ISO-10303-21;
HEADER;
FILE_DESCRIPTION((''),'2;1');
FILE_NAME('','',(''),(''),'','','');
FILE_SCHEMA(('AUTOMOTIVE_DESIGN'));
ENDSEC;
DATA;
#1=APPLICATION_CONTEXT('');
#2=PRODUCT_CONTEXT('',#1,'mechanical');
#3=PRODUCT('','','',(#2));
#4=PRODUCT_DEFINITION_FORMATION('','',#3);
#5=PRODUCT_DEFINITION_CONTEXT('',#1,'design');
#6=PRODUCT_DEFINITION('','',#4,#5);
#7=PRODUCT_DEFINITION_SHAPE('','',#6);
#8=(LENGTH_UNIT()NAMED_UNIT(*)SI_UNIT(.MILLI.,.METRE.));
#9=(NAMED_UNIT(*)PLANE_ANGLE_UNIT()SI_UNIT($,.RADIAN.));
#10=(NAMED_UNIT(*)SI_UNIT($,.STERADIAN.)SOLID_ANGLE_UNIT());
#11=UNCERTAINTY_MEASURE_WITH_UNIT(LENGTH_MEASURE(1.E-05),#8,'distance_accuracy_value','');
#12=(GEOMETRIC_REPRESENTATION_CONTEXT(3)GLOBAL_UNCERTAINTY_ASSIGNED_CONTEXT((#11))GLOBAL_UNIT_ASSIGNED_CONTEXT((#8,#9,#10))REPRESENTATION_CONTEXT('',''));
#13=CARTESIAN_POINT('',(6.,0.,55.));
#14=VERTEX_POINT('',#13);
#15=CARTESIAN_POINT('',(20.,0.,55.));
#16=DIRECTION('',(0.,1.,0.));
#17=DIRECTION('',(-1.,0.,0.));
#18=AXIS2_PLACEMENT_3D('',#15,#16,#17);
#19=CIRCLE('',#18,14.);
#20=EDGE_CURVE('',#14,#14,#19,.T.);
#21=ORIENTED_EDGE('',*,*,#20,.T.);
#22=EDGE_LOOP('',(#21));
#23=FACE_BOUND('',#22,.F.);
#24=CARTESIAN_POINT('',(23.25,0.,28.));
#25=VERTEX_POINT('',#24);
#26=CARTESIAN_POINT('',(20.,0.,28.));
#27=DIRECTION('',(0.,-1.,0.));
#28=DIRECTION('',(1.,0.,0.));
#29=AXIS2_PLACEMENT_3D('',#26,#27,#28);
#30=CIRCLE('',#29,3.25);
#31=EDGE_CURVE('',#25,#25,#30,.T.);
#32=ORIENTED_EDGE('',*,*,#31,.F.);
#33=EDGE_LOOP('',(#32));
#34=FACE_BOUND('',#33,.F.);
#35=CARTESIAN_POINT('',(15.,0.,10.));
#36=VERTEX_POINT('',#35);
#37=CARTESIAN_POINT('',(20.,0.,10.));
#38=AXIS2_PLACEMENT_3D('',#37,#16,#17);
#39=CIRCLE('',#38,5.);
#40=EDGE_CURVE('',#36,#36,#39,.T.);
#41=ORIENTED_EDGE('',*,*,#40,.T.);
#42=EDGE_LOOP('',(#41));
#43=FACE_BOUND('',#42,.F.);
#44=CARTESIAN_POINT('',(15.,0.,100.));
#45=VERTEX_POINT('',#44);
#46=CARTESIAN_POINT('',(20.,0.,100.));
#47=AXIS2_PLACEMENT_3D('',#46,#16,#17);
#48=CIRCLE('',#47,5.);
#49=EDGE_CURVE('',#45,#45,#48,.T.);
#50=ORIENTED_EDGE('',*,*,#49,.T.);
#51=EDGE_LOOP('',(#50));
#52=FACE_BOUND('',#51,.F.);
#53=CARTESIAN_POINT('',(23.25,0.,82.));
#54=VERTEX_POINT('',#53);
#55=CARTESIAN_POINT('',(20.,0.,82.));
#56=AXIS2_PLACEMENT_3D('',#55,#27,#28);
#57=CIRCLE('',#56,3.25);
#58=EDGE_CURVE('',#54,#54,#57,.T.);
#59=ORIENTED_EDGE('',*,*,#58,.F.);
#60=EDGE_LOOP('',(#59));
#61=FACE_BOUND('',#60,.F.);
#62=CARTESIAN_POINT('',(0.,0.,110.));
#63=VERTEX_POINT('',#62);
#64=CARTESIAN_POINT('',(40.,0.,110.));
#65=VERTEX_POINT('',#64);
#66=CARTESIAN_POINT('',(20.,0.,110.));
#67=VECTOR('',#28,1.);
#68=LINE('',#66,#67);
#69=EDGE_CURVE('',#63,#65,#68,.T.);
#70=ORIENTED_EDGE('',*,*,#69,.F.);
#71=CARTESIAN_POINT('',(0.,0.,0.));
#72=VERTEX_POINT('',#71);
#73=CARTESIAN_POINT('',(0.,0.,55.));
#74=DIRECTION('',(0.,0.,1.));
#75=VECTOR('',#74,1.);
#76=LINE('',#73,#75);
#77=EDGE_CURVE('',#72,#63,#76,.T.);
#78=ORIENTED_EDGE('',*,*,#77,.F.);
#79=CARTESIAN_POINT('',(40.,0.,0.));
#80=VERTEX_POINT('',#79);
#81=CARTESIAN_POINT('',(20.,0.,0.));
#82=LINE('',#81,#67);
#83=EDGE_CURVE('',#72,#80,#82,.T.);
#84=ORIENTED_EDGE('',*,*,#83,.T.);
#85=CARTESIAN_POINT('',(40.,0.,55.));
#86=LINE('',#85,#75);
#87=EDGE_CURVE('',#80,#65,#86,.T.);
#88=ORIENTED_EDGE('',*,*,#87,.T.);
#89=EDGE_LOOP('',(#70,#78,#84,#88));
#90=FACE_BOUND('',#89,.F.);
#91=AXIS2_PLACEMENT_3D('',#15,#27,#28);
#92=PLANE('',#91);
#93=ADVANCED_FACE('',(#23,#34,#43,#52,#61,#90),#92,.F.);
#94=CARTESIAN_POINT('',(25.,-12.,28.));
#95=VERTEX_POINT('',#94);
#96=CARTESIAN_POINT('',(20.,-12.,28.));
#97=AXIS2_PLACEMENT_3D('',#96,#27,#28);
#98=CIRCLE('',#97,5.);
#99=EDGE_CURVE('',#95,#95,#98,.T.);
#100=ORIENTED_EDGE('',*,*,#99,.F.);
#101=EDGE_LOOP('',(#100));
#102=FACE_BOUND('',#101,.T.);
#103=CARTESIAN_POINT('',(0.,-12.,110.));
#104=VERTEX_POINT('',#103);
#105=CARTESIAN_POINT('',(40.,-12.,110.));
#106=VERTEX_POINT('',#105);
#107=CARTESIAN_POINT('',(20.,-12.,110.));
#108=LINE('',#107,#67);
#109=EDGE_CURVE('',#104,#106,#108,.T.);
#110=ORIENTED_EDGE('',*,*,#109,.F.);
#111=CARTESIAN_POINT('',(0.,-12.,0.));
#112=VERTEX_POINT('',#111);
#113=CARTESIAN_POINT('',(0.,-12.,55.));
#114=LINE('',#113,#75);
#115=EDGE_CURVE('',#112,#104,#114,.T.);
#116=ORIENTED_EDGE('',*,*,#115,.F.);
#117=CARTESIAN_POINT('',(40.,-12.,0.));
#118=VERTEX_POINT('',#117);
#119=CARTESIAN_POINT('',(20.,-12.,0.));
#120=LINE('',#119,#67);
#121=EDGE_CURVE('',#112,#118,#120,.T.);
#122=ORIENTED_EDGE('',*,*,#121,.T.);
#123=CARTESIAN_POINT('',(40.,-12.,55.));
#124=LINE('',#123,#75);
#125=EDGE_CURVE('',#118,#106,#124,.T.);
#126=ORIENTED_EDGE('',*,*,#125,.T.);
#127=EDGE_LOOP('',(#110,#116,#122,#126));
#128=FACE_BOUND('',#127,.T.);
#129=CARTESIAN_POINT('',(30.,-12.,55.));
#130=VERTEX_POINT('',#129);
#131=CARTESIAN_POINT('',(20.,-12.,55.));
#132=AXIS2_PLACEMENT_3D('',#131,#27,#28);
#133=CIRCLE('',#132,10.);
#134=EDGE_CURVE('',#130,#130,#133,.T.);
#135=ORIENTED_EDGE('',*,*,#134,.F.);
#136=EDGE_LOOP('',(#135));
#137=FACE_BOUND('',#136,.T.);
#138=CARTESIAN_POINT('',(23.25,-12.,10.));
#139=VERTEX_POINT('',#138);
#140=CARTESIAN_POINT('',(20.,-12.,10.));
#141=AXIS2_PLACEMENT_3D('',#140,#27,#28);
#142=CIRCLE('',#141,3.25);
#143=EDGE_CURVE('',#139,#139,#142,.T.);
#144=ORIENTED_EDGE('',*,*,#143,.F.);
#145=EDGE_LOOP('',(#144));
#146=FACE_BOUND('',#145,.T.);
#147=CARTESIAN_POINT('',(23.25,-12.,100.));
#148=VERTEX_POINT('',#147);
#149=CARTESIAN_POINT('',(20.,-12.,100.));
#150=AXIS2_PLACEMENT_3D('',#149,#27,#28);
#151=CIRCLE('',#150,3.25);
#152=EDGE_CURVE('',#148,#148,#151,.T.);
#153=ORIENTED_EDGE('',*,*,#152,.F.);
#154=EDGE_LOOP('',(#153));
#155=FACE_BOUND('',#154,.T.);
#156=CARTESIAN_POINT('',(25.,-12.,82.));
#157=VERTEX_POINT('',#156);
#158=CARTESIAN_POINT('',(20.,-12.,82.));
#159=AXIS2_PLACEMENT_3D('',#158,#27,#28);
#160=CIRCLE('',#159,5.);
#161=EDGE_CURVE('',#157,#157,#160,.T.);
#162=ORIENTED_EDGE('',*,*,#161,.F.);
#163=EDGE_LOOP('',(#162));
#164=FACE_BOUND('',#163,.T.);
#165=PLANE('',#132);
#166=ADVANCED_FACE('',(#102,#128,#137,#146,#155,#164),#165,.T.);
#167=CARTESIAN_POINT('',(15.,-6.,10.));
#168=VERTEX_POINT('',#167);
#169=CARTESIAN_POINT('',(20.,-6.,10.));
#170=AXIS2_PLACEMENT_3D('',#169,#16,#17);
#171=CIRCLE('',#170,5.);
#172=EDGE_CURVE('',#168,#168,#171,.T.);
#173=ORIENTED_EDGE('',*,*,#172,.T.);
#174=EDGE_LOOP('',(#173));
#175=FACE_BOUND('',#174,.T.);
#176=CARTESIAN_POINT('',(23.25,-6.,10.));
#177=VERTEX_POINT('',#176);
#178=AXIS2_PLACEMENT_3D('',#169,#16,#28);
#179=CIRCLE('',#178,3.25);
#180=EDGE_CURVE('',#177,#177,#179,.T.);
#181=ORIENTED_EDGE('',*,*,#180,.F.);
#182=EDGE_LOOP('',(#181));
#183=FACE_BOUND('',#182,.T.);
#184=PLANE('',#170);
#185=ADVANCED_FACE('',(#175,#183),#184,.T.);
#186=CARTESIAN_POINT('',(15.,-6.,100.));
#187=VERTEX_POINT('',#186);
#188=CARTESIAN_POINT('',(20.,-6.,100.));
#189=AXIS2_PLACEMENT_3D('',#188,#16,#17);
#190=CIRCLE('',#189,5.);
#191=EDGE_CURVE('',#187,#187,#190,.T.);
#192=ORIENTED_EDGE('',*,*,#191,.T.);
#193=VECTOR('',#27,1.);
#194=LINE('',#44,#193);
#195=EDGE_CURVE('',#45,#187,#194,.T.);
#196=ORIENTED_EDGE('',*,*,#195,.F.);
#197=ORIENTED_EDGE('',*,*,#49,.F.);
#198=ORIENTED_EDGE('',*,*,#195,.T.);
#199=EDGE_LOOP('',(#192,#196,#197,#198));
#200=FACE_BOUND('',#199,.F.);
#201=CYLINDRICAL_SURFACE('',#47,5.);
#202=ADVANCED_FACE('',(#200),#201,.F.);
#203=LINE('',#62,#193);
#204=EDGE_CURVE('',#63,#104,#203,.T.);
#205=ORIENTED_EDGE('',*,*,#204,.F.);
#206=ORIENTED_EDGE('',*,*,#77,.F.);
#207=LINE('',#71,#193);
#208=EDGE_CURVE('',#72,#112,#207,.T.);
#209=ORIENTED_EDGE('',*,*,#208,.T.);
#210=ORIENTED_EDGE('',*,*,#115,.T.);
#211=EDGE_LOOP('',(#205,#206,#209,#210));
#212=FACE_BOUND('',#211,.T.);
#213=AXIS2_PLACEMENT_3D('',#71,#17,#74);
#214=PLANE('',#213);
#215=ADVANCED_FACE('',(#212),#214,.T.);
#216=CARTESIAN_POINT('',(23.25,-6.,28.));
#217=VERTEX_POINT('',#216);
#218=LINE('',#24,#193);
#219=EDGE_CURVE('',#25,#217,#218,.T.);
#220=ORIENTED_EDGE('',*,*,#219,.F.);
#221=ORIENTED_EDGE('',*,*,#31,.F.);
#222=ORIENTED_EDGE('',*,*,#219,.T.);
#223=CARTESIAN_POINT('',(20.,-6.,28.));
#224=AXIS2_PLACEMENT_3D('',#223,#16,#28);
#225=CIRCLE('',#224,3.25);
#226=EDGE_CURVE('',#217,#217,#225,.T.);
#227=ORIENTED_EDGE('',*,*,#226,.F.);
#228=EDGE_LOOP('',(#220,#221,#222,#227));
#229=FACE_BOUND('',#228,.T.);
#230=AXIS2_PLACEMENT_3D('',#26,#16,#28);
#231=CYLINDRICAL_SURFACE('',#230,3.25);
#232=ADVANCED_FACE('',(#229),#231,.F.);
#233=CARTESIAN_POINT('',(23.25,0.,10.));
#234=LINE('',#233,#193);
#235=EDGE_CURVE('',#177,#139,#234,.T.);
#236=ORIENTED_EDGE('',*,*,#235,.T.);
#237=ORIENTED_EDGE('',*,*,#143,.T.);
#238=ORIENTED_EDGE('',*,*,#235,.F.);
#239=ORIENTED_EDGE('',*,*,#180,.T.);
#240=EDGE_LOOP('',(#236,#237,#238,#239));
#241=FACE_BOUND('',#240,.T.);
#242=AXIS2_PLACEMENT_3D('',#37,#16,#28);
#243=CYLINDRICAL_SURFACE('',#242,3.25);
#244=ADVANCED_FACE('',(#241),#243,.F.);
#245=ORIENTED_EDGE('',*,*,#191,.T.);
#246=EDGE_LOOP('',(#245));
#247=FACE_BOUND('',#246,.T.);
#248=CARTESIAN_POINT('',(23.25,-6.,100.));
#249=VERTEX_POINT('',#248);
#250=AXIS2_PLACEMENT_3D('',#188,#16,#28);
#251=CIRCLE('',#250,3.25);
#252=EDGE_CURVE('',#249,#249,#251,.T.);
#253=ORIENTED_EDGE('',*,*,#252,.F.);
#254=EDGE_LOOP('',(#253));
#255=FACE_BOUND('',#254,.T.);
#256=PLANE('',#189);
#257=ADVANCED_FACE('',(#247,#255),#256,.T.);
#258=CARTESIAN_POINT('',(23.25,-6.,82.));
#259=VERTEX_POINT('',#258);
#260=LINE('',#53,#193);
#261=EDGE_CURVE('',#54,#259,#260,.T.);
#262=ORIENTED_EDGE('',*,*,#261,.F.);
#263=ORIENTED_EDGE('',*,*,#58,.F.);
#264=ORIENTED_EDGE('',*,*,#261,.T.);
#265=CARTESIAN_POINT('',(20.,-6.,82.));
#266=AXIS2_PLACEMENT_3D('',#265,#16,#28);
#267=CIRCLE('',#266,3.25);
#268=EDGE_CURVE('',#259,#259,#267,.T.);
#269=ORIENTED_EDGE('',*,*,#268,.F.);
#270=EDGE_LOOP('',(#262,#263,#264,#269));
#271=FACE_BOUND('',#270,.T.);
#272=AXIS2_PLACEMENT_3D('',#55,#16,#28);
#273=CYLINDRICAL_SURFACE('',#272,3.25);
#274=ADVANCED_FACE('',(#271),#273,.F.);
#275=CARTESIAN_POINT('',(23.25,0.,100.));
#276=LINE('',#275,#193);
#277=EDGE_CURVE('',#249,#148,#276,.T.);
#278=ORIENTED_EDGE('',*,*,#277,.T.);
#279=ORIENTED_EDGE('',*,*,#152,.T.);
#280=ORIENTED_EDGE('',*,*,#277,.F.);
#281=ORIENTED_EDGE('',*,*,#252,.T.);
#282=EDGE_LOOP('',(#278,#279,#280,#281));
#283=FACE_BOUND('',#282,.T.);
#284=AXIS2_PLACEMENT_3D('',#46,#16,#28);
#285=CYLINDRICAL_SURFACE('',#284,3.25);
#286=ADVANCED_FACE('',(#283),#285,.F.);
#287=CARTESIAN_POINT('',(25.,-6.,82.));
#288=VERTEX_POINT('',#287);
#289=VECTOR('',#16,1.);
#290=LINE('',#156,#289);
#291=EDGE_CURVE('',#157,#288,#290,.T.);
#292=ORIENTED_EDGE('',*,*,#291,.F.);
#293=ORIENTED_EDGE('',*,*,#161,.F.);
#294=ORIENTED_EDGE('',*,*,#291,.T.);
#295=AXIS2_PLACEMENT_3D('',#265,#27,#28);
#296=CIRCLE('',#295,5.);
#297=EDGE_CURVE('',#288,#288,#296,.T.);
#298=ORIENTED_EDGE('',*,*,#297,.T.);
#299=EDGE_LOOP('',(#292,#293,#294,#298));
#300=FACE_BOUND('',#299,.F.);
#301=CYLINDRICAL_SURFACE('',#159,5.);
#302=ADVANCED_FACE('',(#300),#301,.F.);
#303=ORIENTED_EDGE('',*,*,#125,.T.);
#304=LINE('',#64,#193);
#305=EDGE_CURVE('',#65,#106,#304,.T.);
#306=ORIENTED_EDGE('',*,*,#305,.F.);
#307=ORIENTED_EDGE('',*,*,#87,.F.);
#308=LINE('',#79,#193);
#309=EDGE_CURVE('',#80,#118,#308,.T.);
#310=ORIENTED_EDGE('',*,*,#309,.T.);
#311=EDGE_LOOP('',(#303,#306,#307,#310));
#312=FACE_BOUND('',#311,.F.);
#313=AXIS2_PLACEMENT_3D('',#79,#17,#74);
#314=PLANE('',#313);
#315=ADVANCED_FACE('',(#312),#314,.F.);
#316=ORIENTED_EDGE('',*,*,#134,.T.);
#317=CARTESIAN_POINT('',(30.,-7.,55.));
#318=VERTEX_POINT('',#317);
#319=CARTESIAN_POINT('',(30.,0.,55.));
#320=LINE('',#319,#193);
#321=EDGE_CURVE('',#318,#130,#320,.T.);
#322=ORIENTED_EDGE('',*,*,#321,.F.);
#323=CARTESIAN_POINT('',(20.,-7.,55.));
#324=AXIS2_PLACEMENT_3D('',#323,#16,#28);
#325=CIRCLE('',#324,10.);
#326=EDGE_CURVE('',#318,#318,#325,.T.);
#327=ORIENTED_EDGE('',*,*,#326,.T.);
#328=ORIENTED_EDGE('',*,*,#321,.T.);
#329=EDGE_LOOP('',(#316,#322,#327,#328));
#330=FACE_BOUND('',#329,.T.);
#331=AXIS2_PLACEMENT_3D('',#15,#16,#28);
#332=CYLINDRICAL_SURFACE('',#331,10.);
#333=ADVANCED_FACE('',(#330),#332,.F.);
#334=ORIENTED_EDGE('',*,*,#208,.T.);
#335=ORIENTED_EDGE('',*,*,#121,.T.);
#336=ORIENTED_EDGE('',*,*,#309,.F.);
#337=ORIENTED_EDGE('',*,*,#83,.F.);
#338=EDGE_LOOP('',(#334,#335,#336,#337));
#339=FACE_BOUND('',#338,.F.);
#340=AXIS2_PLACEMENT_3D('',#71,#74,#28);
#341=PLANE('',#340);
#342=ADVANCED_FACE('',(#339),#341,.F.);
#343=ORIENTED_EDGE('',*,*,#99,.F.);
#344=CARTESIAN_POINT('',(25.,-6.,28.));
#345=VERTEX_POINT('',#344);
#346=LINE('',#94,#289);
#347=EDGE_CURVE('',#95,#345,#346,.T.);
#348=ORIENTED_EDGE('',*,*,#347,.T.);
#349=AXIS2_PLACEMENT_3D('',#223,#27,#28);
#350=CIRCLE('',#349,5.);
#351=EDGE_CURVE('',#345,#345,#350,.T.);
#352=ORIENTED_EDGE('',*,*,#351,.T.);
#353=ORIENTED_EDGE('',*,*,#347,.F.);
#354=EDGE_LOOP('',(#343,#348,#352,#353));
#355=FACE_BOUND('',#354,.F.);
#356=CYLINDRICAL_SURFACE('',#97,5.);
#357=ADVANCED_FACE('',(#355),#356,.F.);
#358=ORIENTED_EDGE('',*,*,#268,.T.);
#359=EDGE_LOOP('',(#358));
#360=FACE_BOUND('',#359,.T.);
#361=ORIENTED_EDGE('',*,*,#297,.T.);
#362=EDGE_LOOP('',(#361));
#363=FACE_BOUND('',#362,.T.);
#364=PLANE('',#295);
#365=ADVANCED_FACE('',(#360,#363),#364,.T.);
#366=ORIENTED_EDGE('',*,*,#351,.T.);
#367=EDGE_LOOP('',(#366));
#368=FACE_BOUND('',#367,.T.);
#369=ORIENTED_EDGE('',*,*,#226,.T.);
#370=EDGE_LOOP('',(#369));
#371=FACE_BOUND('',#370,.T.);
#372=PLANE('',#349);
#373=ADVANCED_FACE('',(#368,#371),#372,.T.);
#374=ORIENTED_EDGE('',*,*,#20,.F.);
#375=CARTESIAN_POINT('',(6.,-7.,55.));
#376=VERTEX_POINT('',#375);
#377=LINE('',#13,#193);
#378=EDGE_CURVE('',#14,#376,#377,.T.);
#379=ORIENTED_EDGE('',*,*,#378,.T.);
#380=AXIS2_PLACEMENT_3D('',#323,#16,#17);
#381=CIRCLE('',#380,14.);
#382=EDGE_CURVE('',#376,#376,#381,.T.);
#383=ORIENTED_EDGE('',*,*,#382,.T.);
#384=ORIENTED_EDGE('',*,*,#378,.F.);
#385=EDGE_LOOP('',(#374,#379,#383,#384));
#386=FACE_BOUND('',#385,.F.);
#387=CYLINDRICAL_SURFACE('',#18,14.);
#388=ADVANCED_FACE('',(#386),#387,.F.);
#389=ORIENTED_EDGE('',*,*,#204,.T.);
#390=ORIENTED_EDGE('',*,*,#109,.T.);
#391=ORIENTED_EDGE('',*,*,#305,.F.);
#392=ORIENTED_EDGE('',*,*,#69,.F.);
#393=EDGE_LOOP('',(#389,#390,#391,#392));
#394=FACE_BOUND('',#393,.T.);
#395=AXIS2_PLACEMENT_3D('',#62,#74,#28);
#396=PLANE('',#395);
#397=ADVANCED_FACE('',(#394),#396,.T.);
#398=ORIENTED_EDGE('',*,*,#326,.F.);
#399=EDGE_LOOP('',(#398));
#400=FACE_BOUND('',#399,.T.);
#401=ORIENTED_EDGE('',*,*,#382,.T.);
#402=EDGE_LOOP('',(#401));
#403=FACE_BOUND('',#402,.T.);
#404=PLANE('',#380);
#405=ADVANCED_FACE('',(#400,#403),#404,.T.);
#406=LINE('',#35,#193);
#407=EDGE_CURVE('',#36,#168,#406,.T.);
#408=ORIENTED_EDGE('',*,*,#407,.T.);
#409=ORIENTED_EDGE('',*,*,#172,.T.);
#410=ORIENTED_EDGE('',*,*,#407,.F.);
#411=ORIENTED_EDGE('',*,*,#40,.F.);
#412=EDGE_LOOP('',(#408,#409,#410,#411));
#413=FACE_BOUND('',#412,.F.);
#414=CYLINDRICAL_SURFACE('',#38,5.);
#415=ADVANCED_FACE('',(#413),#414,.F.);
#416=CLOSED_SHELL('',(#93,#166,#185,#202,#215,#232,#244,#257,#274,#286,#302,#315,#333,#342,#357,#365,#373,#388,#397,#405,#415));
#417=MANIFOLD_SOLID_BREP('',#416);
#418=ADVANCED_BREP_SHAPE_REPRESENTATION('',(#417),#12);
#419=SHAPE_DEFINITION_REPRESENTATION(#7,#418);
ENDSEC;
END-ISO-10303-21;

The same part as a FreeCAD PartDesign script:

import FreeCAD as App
import Part
import Sketcher
from FreeCAD import Vector


def add_polygon(sketch, points):
    """Adds a closed chain of lines whose ends are joined by coincident constraints."""
    first, n = sketch.GeometryCount, len(points)
    for a, b in zip(points, points[1:] + points[:1]):
        sketch.addGeometry(Part.LineSegment(App.Vector(*a, 0), App.Vector(*b, 0)), False)
    for i in range(n):
        sketch.addConstraint(Sketcher.Constraint("Coincident", first + i, 2, first + (i + 1) % n, 1))

doc = App.newDocument("Part")
body = doc.addObject("PartDesign::Body", "Body")

sketch1 = body.newObject("Sketcher::SketchObject", "Sketch")
sketch1.AttachmentSupport = (doc.getObject("XZ_Plane"), [""])
sketch1.MapMode = "FlatFace"
add_polygon(sketch1, [(0, 110), (0, 0), (40, 0), (40, 110)])
sketch1.addGeometry(Part.Circle(Vector(20, 10, 0), Vector(0, 0, 1), 3.2), False)
sketch1.addGeometry(Part.Circle(Vector(20, 28, 0), Vector(0, 0, 1), 3.2), False)
sketch1.addGeometry(Part.Circle(Vector(20, 55, 0), Vector(0, 0, 1), 10), False)
sketch1.addGeometry(Part.Circle(Vector(20, 82, 0), Vector(0, 0, 1), 3.2), False)
sketch1.addGeometry(Part.Circle(Vector(20, 100, 0), Vector(0, 0, 1), 3.2), False)
sketch1.addConstraint([
    Sketcher.Constraint("Vertical", 0),
    Sketcher.Constraint("Horizontal", 1),
    Sketcher.Constraint("Vertical", 2),
    Sketcher.Constraint("Horizontal", 3),
    Sketcher.Constraint("Coincident", 0, 2, -1, 1),
    Sketcher.Constraint("Equal", 4, 5),
    Sketcher.Constraint("Equal", 5, 7),
    Sketcher.Constraint("Equal", 7, 8),
    Sketcher.Constraint("Vertical", 4, 3, 5, 3),
    Sketcher.Constraint("Vertical", 5, 3, 6, 3),
    Sketcher.Constraint("Vertical", 6, 3, 7, 3),
    Sketcher.Constraint("Vertical", 7, 3, 8, 3),
    Sketcher.Constraint("Diameter", 6, 20.0),
    Sketcher.Constraint("Diameter", 4, 6.5),
    Sketcher.Constraint("DistanceX", 1, 1, 1, 2, 40.0),
    Sketcher.Constraint("DistanceY", 0, 2, 0, 1, 110.0),
    Sketcher.Constraint("DistanceX", -1, 1, 4, 3, 20.0),
    Sketcher.Constraint("DistanceY", -1, 1, 4, 3, 10.0),
    Sketcher.Constraint("DistanceY", -1, 1, 5, 3, 28.0),
    Sketcher.Constraint("DistanceY", -1, 1, 6, 3, 55.0),
    Sketcher.Constraint("DistanceY", -1, 1, 7, 3, 82.0),
    Sketcher.Constraint("DistanceY", -1, 1, 8, 3, 100.0),
])
pad1 = body.newObject("PartDesign::Pad", "Pad")
pad1.Profile = sketch1
pad1.Length = 12

sketch2 = body.newObject("Sketcher::SketchObject", "Sketch001")
sketch2.AttachmentSupport = (doc.getObject("XZ_Plane"), [""])
sketch2.MapMode = "FlatFace"
sketch2.AttachmentOffset = App.Placement(Vector(0, 0, 12), App.Rotation())
sketch2.addGeometry([
    Part.Circle(Vector(20, 82, 0), Vector(0, 0, 1), 5),
    Part.Circle(Vector(20, 28, 0), Vector(0, 0, 1), 5),
], False)
sketch2.addConstraint([
    Sketcher.Constraint("Equal", 0, 1),
    Sketcher.Constraint("Vertical", 0, 3, 1, 3),
    Sketcher.Constraint("Diameter", 0, 10.0),
    Sketcher.Constraint("DistanceX", -1, 1, 0, 3, 20.0),
    Sketcher.Constraint("DistanceY", -1, 1, 0, 3, 82.0),
    Sketcher.Constraint("DistanceY", -1, 1, 1, 3, 28.0),
])
pocket1 = body.newObject("PartDesign::Pocket", "Pocket")
pocket1.Profile = sketch2
pocket1.Length = 6

sketch3 = body.newObject("Sketcher::SketchObject", "Sketch002")
sketch3.AttachmentSupport = (doc.getObject("XZ_Plane"), [""])
sketch3.MapMode = "FlatFace"
sketch3.addGeometry([
    Part.Circle(Vector(20, 100, 0), Vector(0, 0, 1), 5),
    Part.Circle(Vector(20, 10, 0), Vector(0, 0, 1), 5),
], False)
sketch3.addConstraint([
    Sketcher.Constraint("Equal", 0, 1),
    Sketcher.Constraint("Vertical", 0, 3, 1, 3),
    Sketcher.Constraint("Diameter", 0, 10.0),
    Sketcher.Constraint("DistanceX", -1, 1, 0, 3, 20.0),
    Sketcher.Constraint("DistanceY", -1, 1, 0, 3, 100.0),
    Sketcher.Constraint("DistanceY", -1, 1, 1, 3, 10.0),
])
pocket2 = body.newObject("PartDesign::Pocket", "Pocket001")
pocket2.Profile = sketch3
pocket2.Length = 6
pocket2.Reversed = True

sketch4 = body.newObject("Sketcher::SketchObject", "Sketch003")
sketch4.AttachmentSupport = (doc.getObject("XZ_Plane"), [""])
sketch4.MapMode = "FlatFace"
sketch4.addGeometry([
    Part.Circle(Vector(20, 55, 0), Vector(0, 0, 1), 14),
    Part.Circle(Vector(20, 55, 0), Vector(0, 0, 1), 10),
], False)
sketch4.addConstraint([
    Sketcher.Constraint("Coincident", 1, 3, 0, 3),
    Sketcher.Constraint("Diameter", 0, 28.0),
    Sketcher.Constraint("Diameter", 1, 20.0),
    Sketcher.Constraint("DistanceX", -1, 1, 0, 3, 20.0),
    Sketcher.Constraint("DistanceY", -1, 1, 0, 3, 55.0),
])
pocket3 = body.newObject("PartDesign::Pocket", "Pocket002")
pocket3.Profile = sketch4
pocket3.Length = 7
pocket3.Reversed = True

doc.recompute()
